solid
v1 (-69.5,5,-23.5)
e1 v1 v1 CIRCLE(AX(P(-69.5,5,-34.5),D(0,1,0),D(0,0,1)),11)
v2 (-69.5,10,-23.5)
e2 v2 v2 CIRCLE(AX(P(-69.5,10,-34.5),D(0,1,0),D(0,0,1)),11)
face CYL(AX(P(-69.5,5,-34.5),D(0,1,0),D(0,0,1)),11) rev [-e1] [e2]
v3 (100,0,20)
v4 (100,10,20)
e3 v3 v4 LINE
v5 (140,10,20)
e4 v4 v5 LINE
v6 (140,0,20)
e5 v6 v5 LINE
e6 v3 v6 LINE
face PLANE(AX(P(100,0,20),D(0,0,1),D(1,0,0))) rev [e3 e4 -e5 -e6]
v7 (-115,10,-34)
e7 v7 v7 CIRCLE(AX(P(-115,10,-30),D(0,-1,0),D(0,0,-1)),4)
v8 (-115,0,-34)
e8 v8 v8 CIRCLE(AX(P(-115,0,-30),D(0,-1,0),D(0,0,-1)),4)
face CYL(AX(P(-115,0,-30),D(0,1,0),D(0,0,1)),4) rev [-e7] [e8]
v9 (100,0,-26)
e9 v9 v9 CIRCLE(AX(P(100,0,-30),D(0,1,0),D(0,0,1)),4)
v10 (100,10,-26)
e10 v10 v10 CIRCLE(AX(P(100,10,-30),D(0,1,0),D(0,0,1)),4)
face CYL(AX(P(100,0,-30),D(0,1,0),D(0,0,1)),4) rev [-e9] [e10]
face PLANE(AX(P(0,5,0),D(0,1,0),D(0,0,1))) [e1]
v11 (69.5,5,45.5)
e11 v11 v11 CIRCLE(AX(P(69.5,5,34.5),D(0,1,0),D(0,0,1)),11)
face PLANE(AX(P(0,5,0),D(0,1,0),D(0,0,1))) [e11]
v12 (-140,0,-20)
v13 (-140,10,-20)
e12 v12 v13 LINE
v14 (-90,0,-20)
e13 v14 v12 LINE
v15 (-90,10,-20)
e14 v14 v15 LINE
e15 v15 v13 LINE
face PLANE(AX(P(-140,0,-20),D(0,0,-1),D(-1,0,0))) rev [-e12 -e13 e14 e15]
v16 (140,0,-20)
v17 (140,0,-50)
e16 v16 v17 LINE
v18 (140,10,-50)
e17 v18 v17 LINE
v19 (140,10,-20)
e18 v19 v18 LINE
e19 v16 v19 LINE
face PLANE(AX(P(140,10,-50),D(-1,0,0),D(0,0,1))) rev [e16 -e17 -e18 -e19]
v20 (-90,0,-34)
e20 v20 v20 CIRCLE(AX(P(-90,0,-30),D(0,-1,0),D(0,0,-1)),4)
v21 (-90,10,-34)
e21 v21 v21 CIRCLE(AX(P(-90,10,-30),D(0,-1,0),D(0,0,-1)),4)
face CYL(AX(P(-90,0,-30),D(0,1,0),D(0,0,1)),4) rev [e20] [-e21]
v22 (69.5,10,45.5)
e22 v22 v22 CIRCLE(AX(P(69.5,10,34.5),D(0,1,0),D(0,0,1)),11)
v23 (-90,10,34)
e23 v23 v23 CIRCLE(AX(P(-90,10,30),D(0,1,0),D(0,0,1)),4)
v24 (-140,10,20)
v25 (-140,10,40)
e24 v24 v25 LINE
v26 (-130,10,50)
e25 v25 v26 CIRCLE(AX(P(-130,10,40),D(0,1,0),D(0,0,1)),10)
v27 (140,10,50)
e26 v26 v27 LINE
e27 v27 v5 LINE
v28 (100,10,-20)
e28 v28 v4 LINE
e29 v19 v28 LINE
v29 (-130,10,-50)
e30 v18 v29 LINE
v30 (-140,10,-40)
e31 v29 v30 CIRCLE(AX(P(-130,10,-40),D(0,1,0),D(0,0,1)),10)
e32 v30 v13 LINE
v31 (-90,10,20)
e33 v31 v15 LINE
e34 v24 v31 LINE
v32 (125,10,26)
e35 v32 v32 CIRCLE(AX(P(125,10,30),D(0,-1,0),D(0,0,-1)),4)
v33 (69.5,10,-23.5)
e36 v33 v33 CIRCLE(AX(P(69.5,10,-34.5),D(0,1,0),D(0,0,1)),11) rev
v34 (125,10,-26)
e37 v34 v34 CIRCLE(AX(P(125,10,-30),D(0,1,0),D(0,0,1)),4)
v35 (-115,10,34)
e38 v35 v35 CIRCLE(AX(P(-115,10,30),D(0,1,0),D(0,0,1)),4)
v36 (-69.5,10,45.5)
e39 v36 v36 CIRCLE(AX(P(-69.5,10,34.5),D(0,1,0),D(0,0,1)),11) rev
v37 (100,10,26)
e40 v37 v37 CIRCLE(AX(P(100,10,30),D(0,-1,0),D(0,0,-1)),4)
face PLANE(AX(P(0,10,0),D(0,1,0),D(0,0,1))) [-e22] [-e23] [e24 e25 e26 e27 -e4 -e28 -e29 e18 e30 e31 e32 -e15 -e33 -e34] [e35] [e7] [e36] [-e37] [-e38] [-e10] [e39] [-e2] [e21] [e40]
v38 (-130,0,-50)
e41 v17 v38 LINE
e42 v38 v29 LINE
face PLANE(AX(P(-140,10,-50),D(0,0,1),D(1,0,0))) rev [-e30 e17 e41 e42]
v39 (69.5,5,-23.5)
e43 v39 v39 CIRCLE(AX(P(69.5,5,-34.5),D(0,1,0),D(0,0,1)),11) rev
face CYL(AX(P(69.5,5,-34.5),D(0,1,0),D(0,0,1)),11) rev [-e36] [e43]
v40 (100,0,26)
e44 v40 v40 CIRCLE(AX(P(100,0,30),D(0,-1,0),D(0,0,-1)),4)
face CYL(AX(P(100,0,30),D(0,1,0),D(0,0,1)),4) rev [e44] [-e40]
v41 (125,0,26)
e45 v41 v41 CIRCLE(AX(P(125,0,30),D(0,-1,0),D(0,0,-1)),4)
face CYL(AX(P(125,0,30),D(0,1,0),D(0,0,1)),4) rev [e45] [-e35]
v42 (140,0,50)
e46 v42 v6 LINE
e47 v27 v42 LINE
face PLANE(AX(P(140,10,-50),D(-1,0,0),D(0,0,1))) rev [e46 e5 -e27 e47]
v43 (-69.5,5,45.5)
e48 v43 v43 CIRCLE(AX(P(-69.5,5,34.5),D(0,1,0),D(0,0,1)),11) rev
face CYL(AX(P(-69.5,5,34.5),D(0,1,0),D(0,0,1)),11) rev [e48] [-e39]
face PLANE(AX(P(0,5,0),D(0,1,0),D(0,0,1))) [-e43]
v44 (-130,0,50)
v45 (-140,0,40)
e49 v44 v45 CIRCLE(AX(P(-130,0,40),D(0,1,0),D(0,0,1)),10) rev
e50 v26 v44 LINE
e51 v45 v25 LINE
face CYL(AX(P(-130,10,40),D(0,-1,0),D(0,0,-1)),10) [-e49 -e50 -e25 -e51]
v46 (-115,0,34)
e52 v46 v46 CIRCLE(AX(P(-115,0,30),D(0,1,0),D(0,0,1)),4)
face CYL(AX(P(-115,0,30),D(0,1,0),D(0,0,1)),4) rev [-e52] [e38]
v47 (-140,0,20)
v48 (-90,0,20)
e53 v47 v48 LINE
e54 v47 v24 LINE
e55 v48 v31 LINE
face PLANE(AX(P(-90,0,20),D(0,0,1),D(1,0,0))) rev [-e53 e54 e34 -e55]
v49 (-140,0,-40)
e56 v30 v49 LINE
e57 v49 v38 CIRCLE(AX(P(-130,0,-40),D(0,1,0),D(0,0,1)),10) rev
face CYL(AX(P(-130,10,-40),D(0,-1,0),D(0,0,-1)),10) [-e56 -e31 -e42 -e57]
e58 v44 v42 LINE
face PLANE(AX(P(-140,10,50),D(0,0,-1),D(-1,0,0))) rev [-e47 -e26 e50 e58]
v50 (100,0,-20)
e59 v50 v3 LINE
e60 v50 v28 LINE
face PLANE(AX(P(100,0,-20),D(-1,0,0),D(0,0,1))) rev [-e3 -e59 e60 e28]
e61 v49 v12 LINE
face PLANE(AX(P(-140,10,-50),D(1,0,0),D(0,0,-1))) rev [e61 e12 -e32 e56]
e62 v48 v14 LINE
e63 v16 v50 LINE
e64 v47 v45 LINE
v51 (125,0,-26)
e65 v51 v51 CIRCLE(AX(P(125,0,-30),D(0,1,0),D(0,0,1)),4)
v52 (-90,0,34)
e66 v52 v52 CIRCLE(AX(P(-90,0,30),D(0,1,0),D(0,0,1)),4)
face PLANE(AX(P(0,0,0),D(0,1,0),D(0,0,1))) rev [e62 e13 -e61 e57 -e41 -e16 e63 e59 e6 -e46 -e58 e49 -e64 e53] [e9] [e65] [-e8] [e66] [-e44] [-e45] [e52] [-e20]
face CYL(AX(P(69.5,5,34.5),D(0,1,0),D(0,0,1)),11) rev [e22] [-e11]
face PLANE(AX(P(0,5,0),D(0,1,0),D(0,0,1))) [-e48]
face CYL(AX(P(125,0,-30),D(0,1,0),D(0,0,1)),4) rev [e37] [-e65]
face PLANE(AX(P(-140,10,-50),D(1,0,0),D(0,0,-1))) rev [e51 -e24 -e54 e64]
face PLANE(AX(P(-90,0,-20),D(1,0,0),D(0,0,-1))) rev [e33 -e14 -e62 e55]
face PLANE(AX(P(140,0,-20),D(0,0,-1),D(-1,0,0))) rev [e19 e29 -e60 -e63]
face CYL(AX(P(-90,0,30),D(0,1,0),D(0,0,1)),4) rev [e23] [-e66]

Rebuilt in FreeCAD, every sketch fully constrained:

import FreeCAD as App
import Part
import Sketcher


def edges_at(feature, points):
    """Names of the edges that pass closest to the given points."""
    edges = feature.Shape.Edges
    near = lambda p: min(range(len(edges)), key=lambda i: edges[i].distToShape(Part.Vertex(*p))[0])
    return sorted({f"Edge{near(p) + 1}" for p in points})

doc = App.newDocument("Part")
params = doc.addObject("Spreadsheet::Sheet", "Params")
for row, (alias, value) in enumerate([
    ("sketch1_width", "280 mm"),
    ("sketch1_height", "100 mm"),
    ("pad1_length", "10 mm"),
    ("sketch2_diameter", "8 mm"),
    ("sketch3_diameter", "8 mm"),
    ("pocket2_length", "10 mm"),
    ("sketch4_width", "50 mm"),
    ("sketch4_height", "40 mm"),
    ("fillet_radius", "10 mm"),
    ("fillet2_radius", "10 mm"),
    ("sketch5_width", "40 mm"),
    ("sketch6_diameter", "22 mm"),
    ("pocket5_length", "5 mm"),
], start=1):
    params.set(f"A{row}", alias)
    params.set(f"B{row}", "=" + value)
    params.setAlias(f"B{row}", alias)

body = doc.addObject("PartDesign::Body", "Body")

sketch1 = doc.addObject("Sketcher::SketchObject", "Sketch")
body.addObject(sketch1)
sketch1.AttachmentSupport = (doc.XZ_Plane, [""])
sketch1.MapMode = "FlatFace"
sketch1.addGeometry([
    Part.LineSegment(App.Vector(-140, -50, 0), App.Vector(-140, 50, 0)),
    Part.LineSegment(App.Vector(-140, 50, 0), App.Vector(140, 50, 0)),
    Part.LineSegment(App.Vector(140, 50, 0), App.Vector(140, -50, 0)),
    Part.LineSegment(App.Vector(140, -50, 0), App.Vector(-140, -50, 0)),
], False)
sketch1.addConstraint([
    Sketcher.Constraint("Coincident", 0, 2, 1, 1),
    Sketcher.Constraint("Coincident", 1, 2, 2, 1),
    Sketcher.Constraint("Coincident", 2, 2, 3, 1),
    Sketcher.Constraint("Coincident", 3, 2, 0, 1),
    Sketcher.Constraint("Vertical", 0),
    Sketcher.Constraint("Horizontal", 1),
    Sketcher.Constraint("Vertical", 2),
    Sketcher.Constraint("Horizontal", 3),
    Sketcher.Constraint("Symmetric", 0, 2, 2, 2, -1, 1),
    Sketcher.Constraint("DistanceX", 1, 1, 1, 2, 280.0),
    Sketcher.Constraint("DistanceY", 0, 1, 0, 2, 100.0),
])
sketch1.setExpression("Constraints[9]", "Params.sketch1_width")
sketch1.setExpression("Constraints[10]", "Params.sketch1_height")
pad1 = doc.addObject("PartDesign::Pad", "Pad")
body.addObject(pad1)
pad1.Profile = sketch1
pad1.setExpression("Length", "Params.pad1_length")
pad1.Reversed = True

sketch2 = doc.addObject("Sketcher::SketchObject", "Sketch001")
body.addObject(sketch2)
sketch2.AttachmentSupport = (doc.XZ_Plane, [""])
sketch2.MapMode = "FlatFace"
sketch2.AttachmentOffset = App.Placement(App.Vector(0, 0, -10), App.Rotation())
sketch2.addGeometry([
    Part.Circle(App.Vector(-115, 30, 0), App.Vector(0, 0, 1), 4),
    Part.Circle(App.Vector(-90, 30, 0), App.Vector(0, 0, 1), 4),
], False)
sketch2.addConstraint([
    Sketcher.Constraint("Equal", 0, 1),
    Sketcher.Constraint("Horizontal", 0, 3, 1, 3),
    Sketcher.Constraint("Diameter", 0, 8.0),
    Sketcher.Constraint("DistanceX", 0, 3, -1, 1, 115.0),
    Sketcher.Constraint("DistanceY", -1, 1, 0, 3, 30.0),
    Sketcher.Constraint("DistanceX", 1, 3, -1, 1, 90.0),
])
sketch2.setExpression("Constraints[2]", "Params.sketch2_diameter")
pocket1 = doc.addObject("PartDesign::Pocket", "Pocket")
body.addObject(pocket1)
pocket1.Profile = sketch2
pocket1.Type = "ThroughAll"
pocket1.Reversed = True
doc.recompute()

mirrored = doc.addObject("PartDesign::Mirrored", "Mirrored")
body.addObject(mirrored)
mirrored.Originals = [pocket1]
mirrored.MirrorPlane = (doc.XY_Plane, [""])
body.Tip = mirrored

sketch3 = doc.addObject("Sketcher::SketchObject", "Sketch002")
body.addObject(sketch3)
sketch3.AttachmentSupport = (doc.XZ_Plane, [""])
sketch3.MapMode = "FlatFace"
sketch3.AttachmentOffset = App.Placement(App.Vector(0, 0, -10), App.Rotation())
sketch3.addGeometry([
    Part.Circle(App.Vector(125, -30, 0), App.Vector(0, 0, 1), 4),
    Part.Circle(App.Vector(100, -30, 0), App.Vector(0, 0, 1), 4),
], False)
sketch3.addConstraint([
    Sketcher.Constraint("Equal", 0, 1),
    Sketcher.Constraint("Horizontal", 0, 3, 1, 3),
    Sketcher.Constraint("Diameter", 0, 8.0),
    Sketcher.Constraint("DistanceX", -1, 1, 0, 3, 125.0),
    Sketcher.Constraint("DistanceY", 0, 3, -1, 1, 30.0),
    Sketcher.Constraint("DistanceX", -1, 1, 1, 3, 100.0),
])
sketch3.setExpression("Constraints[2]", "Params.sketch3_diameter")
pocket2 = doc.addObject("PartDesign::Pocket", "Pocket001")
body.addObject(pocket2)
pocket2.Profile = sketch3
pocket2.setExpression("Length", "Params.pocket2_length")
pocket2.Reversed = True
doc.recompute()

mirrored2 = doc.addObject("PartDesign::Mirrored", "Mirrored001")
body.addObject(mirrored2)
mirrored2.Originals = [pocket2]
mirrored2.MirrorPlane = (doc.XY_Plane, [""])
body.Tip = mirrored2

sketch4 = doc.addObject("Sketcher::SketchObject", "Sketch003")
body.addObject(sketch4)
sketch4.AttachmentSupport = (doc.XZ_Plane, [""])
sketch4.MapMode = "FlatFace"
sketch4.AttachmentOffset = App.Placement(App.Vector(0, 0, -10), App.Rotation())
sketch4.addGeometry([
    Part.LineSegment(App.Vector(-140, -20, 0), App.Vector(-140, 20, 0)),
    Part.LineSegment(App.Vector(-140, 20, 0), App.Vector(-90, 20, 0)),
    Part.LineSegment(App.Vector(-90, 20, 0), App.Vector(-90, -20, 0)),
    Part.LineSegment(App.Vector(-90, -20, 0), App.Vector(-140, -20, 0)),
], False)
sketch4.addConstraint([
    Sketcher.Constraint("Coincident", 0, 2, 1, 1),
    Sketcher.Constraint("Coincident", 1, 2, 2, 1),
    Sketcher.Constraint("Coincident", 2, 2, 3, 1),
    Sketcher.Constraint("Coincident", 3, 2, 0, 1),
    Sketcher.Constraint("Vertical", 0),
    Sketcher.Constraint("Horizontal", 1),
    Sketcher.Constraint("Vertical", 2),
    Sketcher.Constraint("Horizontal", 3),
    Sketcher.Constraint("DistanceX", 1, 1, 1, 2, 50.0),
    Sketcher.Constraint("DistanceY", 0, 1, 0, 2, 40.0),
    Sketcher.Constraint("DistanceX", 0, 2, -1, 1, 140.0),
    Sketcher.Constraint("DistanceY", -1, 1, 0, 2, 20.0),
])
sketch4.setExpression("Constraints[8]", "Params.sketch4_width")
sketch4.setExpression("Constraints[9]", "Params.sketch4_height")
pocket3 = doc.addObject("PartDesign::Pocket", "Pocket002")
body.addObject(pocket3)
pocket3.Profile = sketch4
pocket3.Type = "ThroughAll"
pocket3.Reversed = True
doc.recompute()

fillet = doc.addObject("PartDesign::Fillet", "Fillet")
body.addObject(fillet)
fillet.Base = (pocket3, edges_at(pocket3, [(-140, 5, 50)]))
fillet.setExpression("Radius", "Params.fillet_radius")
doc.recompute()

fillet2 = doc.addObject("PartDesign::Fillet", "Fillet001")
body.addObject(fillet2)
fillet2.Base = (fillet, edges_at(fillet, [(-140, 5, -50)]))
fillet2.setExpression("Radius", "Params.fillet2_radius")

sketch5 = doc.addObject("Sketcher::SketchObject", "Sketch004")
body.addObject(sketch5)
sketch5.AttachmentSupport = (doc.XZ_Plane, [""])
sketch5.MapMode = "FlatFace"
sketch5.AttachmentOffset = App.Placement(App.Vector(0, 0, -10), App.Rotation())
sketch5.addGeometry([
    Part.LineSegment(App.Vector(100, -20, 0), App.Vector(100, 20, 0)),
    Part.LineSegment(App.Vector(100, 20, 0), App.Vector(140, 20, 0)),
    Part.LineSegment(App.Vector(140, 20, 0), App.Vector(140, -20, 0)),
    Part.LineSegment(App.Vector(140, -20, 0), App.Vector(100, -20, 0)),
], False)
sketch5.addConstraint([
    Sketcher.Constraint("Coincident", 0, 2, 1, 1),
    Sketcher.Constraint("Coincident", 1, 2, 2, 1),
    Sketcher.Constraint("Coincident", 2, 2, 3, 1),
    Sketcher.Constraint("Coincident", 3, 2, 0, 1),
    Sketcher.Constraint("Vertical", 0),
    Sketcher.Constraint("Horizontal", 1),
    Sketcher.Constraint("Vertical", 2),
    Sketcher.Constraint("Horizontal", 3),
    Sketcher.Constraint("Equal", 3, 0),
    Sketcher.Constraint("DistanceX", 1, 1, 1, 2, 40.0),
    Sketcher.Constraint("DistanceX", -1, 1, 0, 2, 100.0),
    Sketcher.Constraint("DistanceY", -1, 1, 0, 2, 20.0),
])
sketch5.setExpression("Constraints[9]", "Params.sketch5_width")
pocket4 = doc.addObject("PartDesign::Pocket", "Pocket003")
body.addObject(pocket4)
pocket4.Profile = sketch5
pocket4.Type = "ThroughAll"
pocket4.Reversed = True

sketch6 = doc.addObject("Sketcher::SketchObject", "Sketch005")
body.addObject(sketch6)
sketch6.AttachmentSupport = (doc.XZ_Plane, [""])
sketch6.MapMode = "FlatFace"
sketch6.AttachmentOffset = App.Placement(App.Vector(0, 0, -10), App.Rotation())
sketch6.addGeometry([
    Part.Circle(App.Vector(-70, 34, 0), App.Vector(0, 0, 1), 11),
    Part.Circle(App.Vector(-70, -34, 0), App.Vector(0, 0, 1), 11),
    Part.Circle(App.Vector(70, -34, 0), App.Vector(0, 0, 1), 11),
    Part.Circle(App.Vector(70, 34, 0), App.Vector(0, 0, 1), 11),
], False)
sketch6.addConstraint([
    Sketcher.Constraint("Equal", 0, 1),
    Sketcher.Constraint("Equal", 1, 2),
    Sketcher.Constraint("Equal", 2, 3),
    Sketcher.Constraint("Symmetric", 0, 3, 2, 3, -1, 1),
    Sketcher.Constraint("Symmetric", 1, 3, 3, 3, -1, 1),
    Sketcher.Constraint("Symmetric", 1, 3, 2, 3, -2),
    Sketcher.Constraint("Diameter", 0, 22.0),
    Sketcher.Constraint("DistanceY", 1, 3, 0, 3, 69.0),
    Sketcher.Constraint("DistanceX", 1, 3, 2, 3, 139.0),
])
sketch6.setExpression("Constraints[6]", "Params.sketch6_diameter")
pocket5 = doc.addObject("PartDesign::Pocket", "Pocket004")
body.addObject(pocket5)
pocket5.Profile = sketch6
pocket5.setExpression("Length", "Params.pocket5_length")
pocket5.Reversed = True

doc.recompute()
